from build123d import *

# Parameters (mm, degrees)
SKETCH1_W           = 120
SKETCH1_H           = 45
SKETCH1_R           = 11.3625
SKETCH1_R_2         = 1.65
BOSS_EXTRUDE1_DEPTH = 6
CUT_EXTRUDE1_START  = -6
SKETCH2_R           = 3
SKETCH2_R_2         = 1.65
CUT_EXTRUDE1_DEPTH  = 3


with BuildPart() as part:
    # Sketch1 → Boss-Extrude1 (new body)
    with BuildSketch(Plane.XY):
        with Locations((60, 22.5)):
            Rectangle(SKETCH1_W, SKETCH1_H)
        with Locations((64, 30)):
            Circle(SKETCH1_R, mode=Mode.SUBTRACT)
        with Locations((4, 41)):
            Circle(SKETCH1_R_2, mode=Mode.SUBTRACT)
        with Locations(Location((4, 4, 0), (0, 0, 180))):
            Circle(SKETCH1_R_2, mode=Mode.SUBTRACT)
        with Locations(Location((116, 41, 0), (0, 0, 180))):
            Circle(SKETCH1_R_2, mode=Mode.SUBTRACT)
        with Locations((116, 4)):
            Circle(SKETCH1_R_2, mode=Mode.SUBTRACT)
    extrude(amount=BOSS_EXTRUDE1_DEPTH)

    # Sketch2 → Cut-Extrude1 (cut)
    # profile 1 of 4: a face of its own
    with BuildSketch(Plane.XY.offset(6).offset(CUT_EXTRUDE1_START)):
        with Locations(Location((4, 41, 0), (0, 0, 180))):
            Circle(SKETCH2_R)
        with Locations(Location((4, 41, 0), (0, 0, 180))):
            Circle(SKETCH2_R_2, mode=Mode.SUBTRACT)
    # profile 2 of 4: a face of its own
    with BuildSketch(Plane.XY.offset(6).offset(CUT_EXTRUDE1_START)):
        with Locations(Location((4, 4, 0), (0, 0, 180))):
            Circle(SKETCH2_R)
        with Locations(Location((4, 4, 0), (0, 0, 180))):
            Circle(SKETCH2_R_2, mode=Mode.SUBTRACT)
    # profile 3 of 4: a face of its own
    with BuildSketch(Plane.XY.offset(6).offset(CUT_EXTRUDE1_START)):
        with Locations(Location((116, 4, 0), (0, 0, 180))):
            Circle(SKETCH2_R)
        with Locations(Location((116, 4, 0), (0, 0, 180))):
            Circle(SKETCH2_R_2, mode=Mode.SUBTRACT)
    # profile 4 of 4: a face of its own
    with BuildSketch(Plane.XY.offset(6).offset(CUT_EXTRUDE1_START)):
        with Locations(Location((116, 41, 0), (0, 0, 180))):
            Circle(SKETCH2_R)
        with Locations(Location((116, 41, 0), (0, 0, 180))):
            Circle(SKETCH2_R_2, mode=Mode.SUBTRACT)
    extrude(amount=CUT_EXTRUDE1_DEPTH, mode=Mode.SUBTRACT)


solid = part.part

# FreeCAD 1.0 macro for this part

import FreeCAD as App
import Part
import Sketcher
from FreeCAD import Vector

doc = App.newDocument("Part")
params = doc.addObject("Spreadsheet::Sheet", "Params")
for row, (alias, value) in enumerate([
    ("sketch1_diameter", "3.3 mm"),
    ("sketch1_width", "120 mm"),
    ("sketch1_height", "45 mm"),
    ("pad1_length", "6 mm"),
    ("sketch2_diameter", "6 mm"),
    ("sketch2_diameter2", "3.3 mm"),
    ("pocket1_length", "3 mm"),
], start=1):
    params.set(f"A{row}", alias)
    params.set(f"B{row}", "=" + value)
    params.setAlias(f"B{row}", alias)

body = doc.addObject("PartDesign::Body", "Body")

# Sketch on XY plane
sketch1 = body.newObject("Sketcher::SketchObject", "Sketch")
sketch1.AttachmentSupport = (doc.getObject("XY_Plane"), [""])
sketch1.MapMode = "FlatFace"
sketch1.addGeometry([
    Part.LineSegment(Vector(0, 45, 0), Vector(0, 0, 0)),  # 0
    Part.LineSegment(Vector(0, 0, 0), Vector(120, 0, 0)),  # 1
    Part.LineSegment(Vector(120, 0, 0), Vector(120, 45, 0)),  # 2
    Part.LineSegment(Vector(120, 45, 0), Vector(0, 45, 0)),  # 3
    Part.Circle(Vector(4, 4, 0), Vector(0, 0, 1), 1.6),  # 4
    Part.Circle(Vector(116, 4, 0), Vector(0, 0, 1), 1.6),  # 5
    Part.Circle(Vector(4, 41, 0), Vector(0, 0, 1), 1.6),  # 6
    Part.Circle(Vector(64, 30, 0), Vector(0, 0, 1), 11.4),  # 7
    Part.Circle(Vector(116, 41, 0), Vector(0, 0, 1), 1.6),  # 8
], False)
sketch1.addConstraint([
    Sketcher.Constraint("Coincident", 0, 2, 1, 1),
    Sketcher.Constraint("Coincident", 1, 2, 2, 1),
    Sketcher.Constraint("Coincident", 2, 2, 3, 1),
    Sketcher.Constraint("Coincident", 3, 2, 0, 1),
    Sketcher.Constraint("Vertical", 0),
    Sketcher.Constraint("Horizontal", 1),
    Sketcher.Constraint("Vertical", 2),
    Sketcher.Constraint("Horizontal", 3),
    Sketcher.Constraint("Coincident", 0, 2, -1, 1),
    Sketcher.Constraint("Equal", 4, 5),
    Sketcher.Constraint("Equal", 5, 6),
    Sketcher.Constraint("Equal", 6, 8),
    Sketcher.Constraint("Horizontal", 4, 3, 5, 3),
    Sketcher.Constraint("Horizontal", 6, 3, 8, 3),
    Sketcher.Constraint("Vertical", 4, 3, 6, 3),
    Sketcher.Constraint("Vertical", 5, 3, 8, 3),
    Sketcher.Constraint("Diameter", 4, 3.3),
    Sketcher.Constraint("DistanceX", 1, 1, 1, 2, 120.0),
    Sketcher.Constraint("DistanceY", 0, 2, 0, 1, 45.0),
    Sketcher.Constraint("Diameter", 7, 22.725),
    Sketcher.Constraint("DistanceX", -1, 1, 4, 3, 4.0),
    Sketcher.Constraint("DistanceY", -1, 1, 4, 3, 4.0),
    Sketcher.Constraint("DistanceX", -1, 1, 5, 3, 116.0),
    Sketcher.Constraint("DistanceY", -1, 1, 6, 3, 41.0),
    Sketcher.Constraint("DistanceX", -1, 1, 7, 3, 64.0),
    Sketcher.Constraint("DistanceY", -1, 1, 7, 3, 30.0),
])
sketch1.setExpression("Constraints[16]", "Params.sketch1_diameter")
sketch1.setExpression("Constraints[17]", "Params.sketch1_width")
sketch1.setExpression("Constraints[18]", "Params.sketch1_height")
pad1 = body.newObject("PartDesign::Pad", "Pad")
pad1.Profile = sketch1
pad1.setExpression("Length", "Params.pad1_length")

# Sketch on XY plane
sketch2 = body.newObject("Sketcher::SketchObject", "Sketch001")
sketch2.AttachmentSupport = (doc.getObject("XY_Plane"), [""])
sketch2.MapMode = "FlatFace"
sketch2.addGeometry([
    Part.Circle(Vector(4, 41, 0), Vector(0, 0, 1), 3),  # 0
    Part.Circle(Vector(4, 41, 0), Vector(0, 0, 1), 1.6),  # 1
    Part.Circle(Vector(4, 4, 0), Vector(0, 0, 1), 3),  # 2
    Part.Circle(Vector(4, 4, 0), Vector(0, 0, 1), 1.6),  # 3
    Part.Circle(Vector(116, 4, 0), Vector(0, 0, 1), 3),  # 4
    Part.Circle(Vector(116, 4, 0), Vector(0, 0, 1), 1.6),  # 5
    Part.Circle(Vector(116, 41, 0), Vector(0, 0, 1), 3),  # 6
    Part.Circle(Vector(116, 41, 0), Vector(0, 0, 1), 1.6),  # 7
], False)
sketch2.addConstraint([
    Sketcher.Constraint("Coincident", 1, 3, 0, 3),
    Sketcher.Constraint("Coincident", 3, 3, 2, 3),
    Sketcher.Constraint("Coincident", 5, 3, 4, 3),
    Sketcher.Constraint("Coincident", 7, 3, 6, 3),
    Sketcher.Constraint("Equal", 0, 2),
    Sketcher.Constraint("Equal", 1, 3),
    Sketcher.Constraint("Equal", 2, 4),
    Sketcher.Constraint("Equal", 3, 5),
    Sketcher.Constraint("Equal", 4, 6),
    Sketcher.Constraint("Equal", 5, 7),
    Sketcher.Constraint("Horizontal", 3, 3, 4, 3),
    Sketcher.Constraint("Horizontal", 1, 3, 6, 3),
    Sketcher.Constraint("Vertical", 1, 3, 2, 3),
    Sketcher.Constraint("Vertical", 5, 3, 6, 3),
    Sketcher.Constraint("Diameter", 0, 6.0),
    Sketcher.Constraint("Diameter", 1, 3.3),
    Sketcher.Constraint("DistanceX", -1, 1, 0, 3, 4.0),
    Sketcher.Constraint("DistanceY", -1, 1, 0, 3, 41.0),
    Sketcher.Constraint("DistanceY", -1, 1, 2, 3, 4.0),
    Sketcher.Constraint("DistanceX", -1, 1, 4, 3, 116.0),
])
sketch2.setExpression("Constraints[14]", "Params.sketch2_diameter")
sketch2.setExpression("Constraints[15]", "Params.sketch2_diameter2")
pocket1 = body.newObject("PartDesign::Pocket", "Pocket")
pocket1.Profile = sketch2
pocket1.setExpression("Length", "Params.pocket1_length")
pocket1.Reversed = True

doc.recompute()
